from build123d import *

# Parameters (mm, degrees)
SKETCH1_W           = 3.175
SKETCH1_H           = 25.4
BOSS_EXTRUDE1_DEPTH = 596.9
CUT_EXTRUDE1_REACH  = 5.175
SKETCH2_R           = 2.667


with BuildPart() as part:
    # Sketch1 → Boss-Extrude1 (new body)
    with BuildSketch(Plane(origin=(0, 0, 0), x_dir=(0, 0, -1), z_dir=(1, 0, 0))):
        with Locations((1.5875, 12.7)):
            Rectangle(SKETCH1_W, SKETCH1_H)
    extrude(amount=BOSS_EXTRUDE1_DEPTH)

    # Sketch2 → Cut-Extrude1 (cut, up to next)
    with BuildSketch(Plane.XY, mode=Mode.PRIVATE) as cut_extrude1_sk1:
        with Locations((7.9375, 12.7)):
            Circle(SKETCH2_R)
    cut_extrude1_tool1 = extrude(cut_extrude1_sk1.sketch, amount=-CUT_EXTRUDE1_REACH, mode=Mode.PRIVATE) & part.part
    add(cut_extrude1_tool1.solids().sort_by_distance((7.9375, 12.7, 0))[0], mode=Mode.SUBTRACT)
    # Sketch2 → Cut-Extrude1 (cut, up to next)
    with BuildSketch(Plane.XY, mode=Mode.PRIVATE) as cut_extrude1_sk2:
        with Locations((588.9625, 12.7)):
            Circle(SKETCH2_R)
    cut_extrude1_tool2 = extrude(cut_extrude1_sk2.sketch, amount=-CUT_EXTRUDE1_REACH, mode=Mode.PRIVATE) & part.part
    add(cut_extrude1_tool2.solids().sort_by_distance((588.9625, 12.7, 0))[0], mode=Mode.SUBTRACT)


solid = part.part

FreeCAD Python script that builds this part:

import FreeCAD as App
import Part
import Sketcher

V = App.Vector
Q = App.Units.Quantity


def add_polygon(sketch, points):
    """Adds a closed chain of lines whose ends are joined by coincident constraints."""
    first, n = sketch.GeometryCount, len(points)
    for a, b in zip(points, points[1:] + points[:1]):
        sketch.addGeometry(Part.LineSegment(App.Vector(*a, 0), App.Vector(*b, 0)), False)
    for i in range(n):
        sketch.addConstraint(Sketcher.Constraint("Coincident", first + i, 2, first + (i + 1) % n, 1))

doc = App.newDocument("Part")
body = doc.addObject("PartDesign::Body", "Body")

# Sketch on YZ plane
sketch1 = body.newObject("Sketcher::SketchObject", "Sketch")
sketch1.AttachmentSupport = (doc.getObject("YZ_Plane"), [""])
sketch1.MapMode = "FlatFace"
add_polygon(sketch1, [(25.4, 0), (0, 0), (0, -3.175), (25.4, -3.175)])  # lines 0-3
sketch1.addConstraint(Sketcher.Constraint("Horizontal", 0))
sketch1.addConstraint(Sketcher.Constraint("Vertical", 1))
sketch1.addConstraint(Sketcher.Constraint("Horizontal", 2))
sketch1.addConstraint(Sketcher.Constraint("Vertical", 3))
sketch1.addConstraint(Sketcher.Constraint("Coincident", 0, 2, -1, 1))
sketch1.addConstraint(Sketcher.Constraint("DistanceX", 0, 2, 0, 1, Q("1 in")))
sketch1.addConstraint(Sketcher.Constraint("DistanceY", 1, 2, 1, 1, Q("0.125 in")))
pad1 = body.newObject("PartDesign::Pad", "Pad")
pad1.Profile = sketch1
pad1.Length = Q("23.5 in")

# Sketch on XY plane
sketch2 = body.newObject("Sketcher::SketchObject", "Sketch001")
sketch2.AttachmentSupport = (doc.getObject("XY_Plane"), [""])
sketch2.MapMode = "FlatFace"
sketch2.addGeometry(Part.Circle(V(7.9375, 12.7, 0), V(0, 0, 1), 2.667), False)
sketch2.addConstraint(Sketcher.Constraint("Diameter", 0, Q("0.21 in")))
sketch2.addConstraint(Sketcher.Constraint("DistanceY", -1, 1, 0, 3, Q("0.5 in")))
sketch2.addConstraint(Sketcher.Constraint("DistanceX", -1, 1, 0, 3, Q("0.3125 in")))
pocket1 = body.newObject("PartDesign::Pocket", "Pocket")
pocket1.Profile = sketch2
pocket1.Type = "UpToFirst"

# Sketch on XY plane
sketch3 = body.newObject("Sketcher::SketchObject", "Sketch002")
sketch3.AttachmentSupport = (doc.getObject("XY_Plane"), [""])
sketch3.MapMode = "FlatFace"
sketch3.addGeometry(Part.Circle(V(588.9625, 12.7, 0), V(0, 0, 1), 2.667), False)
sketch3.addConstraint(Sketcher.Constraint("Diameter", 0, Q("0.21 in")))
sketch3.addConstraint(Sketcher.Constraint("DistanceY", -1, 1, 0, 3, Q("0.5 in")))
sketch3.addConstraint(Sketcher.Constraint("DistanceX", -1, 1, 0, 3, Q("23.1875 in")))
pocket2 = body.newObject("PartDesign::Pocket", "Pocket001")
pocket2.Profile = sketch3
pocket2.Type = "UpToFirst"

doc.recompute()
